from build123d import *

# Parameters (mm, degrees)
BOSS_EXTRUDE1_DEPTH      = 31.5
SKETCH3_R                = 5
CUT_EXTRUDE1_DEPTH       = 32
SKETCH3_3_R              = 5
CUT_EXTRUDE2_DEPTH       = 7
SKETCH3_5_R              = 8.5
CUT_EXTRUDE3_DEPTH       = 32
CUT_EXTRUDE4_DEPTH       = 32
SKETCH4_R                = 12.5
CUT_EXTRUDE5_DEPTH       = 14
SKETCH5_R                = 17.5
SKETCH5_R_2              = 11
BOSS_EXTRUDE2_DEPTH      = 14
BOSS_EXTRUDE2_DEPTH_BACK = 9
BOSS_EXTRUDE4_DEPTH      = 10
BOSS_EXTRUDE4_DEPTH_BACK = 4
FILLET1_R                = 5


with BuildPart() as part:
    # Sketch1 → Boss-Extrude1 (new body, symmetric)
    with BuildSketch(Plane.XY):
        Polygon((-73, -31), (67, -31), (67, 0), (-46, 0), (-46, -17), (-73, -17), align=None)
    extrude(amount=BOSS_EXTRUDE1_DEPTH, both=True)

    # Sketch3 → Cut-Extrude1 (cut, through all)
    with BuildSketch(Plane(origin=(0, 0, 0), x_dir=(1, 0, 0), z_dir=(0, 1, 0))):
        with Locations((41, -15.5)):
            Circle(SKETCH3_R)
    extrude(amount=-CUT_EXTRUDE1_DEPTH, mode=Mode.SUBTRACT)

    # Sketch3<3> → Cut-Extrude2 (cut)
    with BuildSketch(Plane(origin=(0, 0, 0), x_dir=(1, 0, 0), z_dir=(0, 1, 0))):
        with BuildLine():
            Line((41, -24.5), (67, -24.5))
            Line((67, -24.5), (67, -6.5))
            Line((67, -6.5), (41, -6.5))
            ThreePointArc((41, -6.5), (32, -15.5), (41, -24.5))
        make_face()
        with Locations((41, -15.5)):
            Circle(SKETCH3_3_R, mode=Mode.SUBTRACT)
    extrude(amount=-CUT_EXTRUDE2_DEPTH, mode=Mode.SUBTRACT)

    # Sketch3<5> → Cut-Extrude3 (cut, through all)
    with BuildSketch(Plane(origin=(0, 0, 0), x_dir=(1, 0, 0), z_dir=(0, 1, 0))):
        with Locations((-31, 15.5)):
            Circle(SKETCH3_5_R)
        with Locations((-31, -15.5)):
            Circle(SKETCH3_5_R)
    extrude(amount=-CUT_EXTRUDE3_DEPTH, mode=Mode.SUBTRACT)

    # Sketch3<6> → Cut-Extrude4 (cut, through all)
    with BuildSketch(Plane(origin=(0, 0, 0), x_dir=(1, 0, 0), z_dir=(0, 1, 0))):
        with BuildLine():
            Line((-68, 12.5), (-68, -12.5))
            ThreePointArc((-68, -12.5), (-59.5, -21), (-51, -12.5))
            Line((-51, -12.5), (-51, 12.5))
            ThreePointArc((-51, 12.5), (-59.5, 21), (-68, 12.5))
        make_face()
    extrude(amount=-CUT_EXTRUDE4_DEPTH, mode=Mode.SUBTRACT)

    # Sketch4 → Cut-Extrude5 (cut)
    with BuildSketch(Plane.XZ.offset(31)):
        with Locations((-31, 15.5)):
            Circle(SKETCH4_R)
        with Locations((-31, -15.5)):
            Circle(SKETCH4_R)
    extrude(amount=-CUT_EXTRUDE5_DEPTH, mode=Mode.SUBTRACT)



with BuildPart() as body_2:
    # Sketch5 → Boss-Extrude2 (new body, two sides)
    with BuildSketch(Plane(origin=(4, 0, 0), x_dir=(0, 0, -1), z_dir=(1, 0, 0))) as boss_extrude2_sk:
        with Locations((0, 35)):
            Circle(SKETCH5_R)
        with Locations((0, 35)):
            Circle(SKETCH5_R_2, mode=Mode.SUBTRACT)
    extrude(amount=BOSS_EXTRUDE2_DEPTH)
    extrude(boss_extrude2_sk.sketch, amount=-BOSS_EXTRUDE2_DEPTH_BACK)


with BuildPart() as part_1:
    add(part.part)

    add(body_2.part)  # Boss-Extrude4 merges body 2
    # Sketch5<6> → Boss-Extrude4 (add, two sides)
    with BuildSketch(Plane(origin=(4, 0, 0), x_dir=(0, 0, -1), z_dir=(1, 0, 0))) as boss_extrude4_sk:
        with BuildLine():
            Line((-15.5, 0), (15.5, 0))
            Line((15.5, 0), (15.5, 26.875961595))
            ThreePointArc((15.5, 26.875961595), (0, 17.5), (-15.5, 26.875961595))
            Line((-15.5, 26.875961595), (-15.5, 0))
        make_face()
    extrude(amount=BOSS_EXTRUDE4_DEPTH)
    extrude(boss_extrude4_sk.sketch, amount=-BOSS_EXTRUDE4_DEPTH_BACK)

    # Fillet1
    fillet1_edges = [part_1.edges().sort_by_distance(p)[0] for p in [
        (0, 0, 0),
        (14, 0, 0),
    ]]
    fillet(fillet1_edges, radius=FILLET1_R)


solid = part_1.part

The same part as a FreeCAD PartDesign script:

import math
import FreeCAD as App
import Part
import Sketcher
from FreeCAD import Vector
Q = App.Units.Quantity


def edges_at(feature, points):
    """Names of the edges that pass closest to the given points."""
    edges = feature.Shape.Edges
    near = lambda p: min(range(len(edges)), key=lambda i: edges[i].distToShape(Part.Vertex(*p))[0])
    return sorted({f"Edge{near(p) + 1}" for p in points})


def add_polygon(sketch, points):
    """Adds a closed chain of lines whose ends are joined by coincident constraints."""
    first, n = sketch.GeometryCount, len(points)
    for a, b in zip(points, points[1:] + points[:1]):
        sketch.addGeometry(Part.LineSegment(App.Vector(*a, 0), App.Vector(*b, 0)), False)
    for i in range(n):
        sketch.addConstraint(Sketcher.Constraint("Coincident", first + i, 2, first + (i + 1) % n, 1))

doc = App.newDocument("Part")
body = doc.addObject("PartDesign::Body", "Body")

# Sketch on XY plane
sketch1 = body.newObject("Sketcher::SketchObject", "Sketch")
sketch1.AttachmentSupport = (doc.getObject("XY_Plane"), [""])
sketch1.MapMode = "FlatFace"
add_polygon(sketch1, [(-73, -31), (67, -31), (67, 0), (-46, 0), (-46, -17), (-73, -17)])  # lines 0-5
sketch1.addConstraint([
    Sketcher.Constraint("Horizontal", 0),
    Sketcher.Constraint("Vertical", 1),
    Sketcher.Constraint("Horizontal", 2),
    Sketcher.Constraint("Vertical", 3),
    Sketcher.Constraint("Horizontal", 4),
    Sketcher.Constraint("Vertical", 5),
    Sketcher.Constraint("PointOnObject", 1, 2, -1),
    Sketcher.Constraint("DistanceX", 0, 1, 0, 2, Q("140 mm")),
    Sketcher.Constraint("DistanceX", 2, 2, 2, 1, Q("113 mm")),
    Sketcher.Constraint("DistanceY", 1, 1, 1, 2, Q("31 mm")),
    Sketcher.Constraint("DistanceY", 3, 2, 3, 1, Q("17 mm")),
    Sketcher.Constraint("DistanceX", -1, 1, 0, 2, Q("67 mm")),
])
pad1 = body.newObject("PartDesign::Pad", "Pad")
pad1.Profile = sketch1
pad1.Length = 63
pad1.Midplane = True

# Sketch on XZ plane
sketch2 = body.newObject("Sketcher::SketchObject", "Sketch001")
sketch2.AttachmentSupport = (doc.getObject("XZ_Plane"), [""])
sketch2.MapMode = "FlatFace"
sketch2.addGeometry(Part.Circle(Vector(41, 16, 0), Vector(0, 0, 1), 5), False)
sketch2.addConstraint([
    Sketcher.Constraint("Diameter", 0, Q("10 mm")),
    Sketcher.Constraint("DistanceX", -1, 1, 0, 3, Q("41 mm")),
    Sketcher.Constraint("DistanceY", -1, 1, 0, 3, Q("15.5 mm")),
])
pocket1 = body.newObject("PartDesign::Pocket", "Pocket")
pocket1.Profile = sketch2
pocket1.Type = "ThroughAll"
pocket1.Reversed = True

# Sketch on XZ plane
sketch3 = body.newObject("Sketcher::SketchObject", "Sketch002")
sketch3.AttachmentSupport = (doc.getObject("XZ_Plane"), [""])
sketch3.MapMode = "FlatFace"
sketch3.addGeometry([
    Part.LineSegment(Vector(41, 24, 0), Vector(67, 24, 0)),  # 0
    Part.LineSegment(Vector(67, 24, 0), Vector(67, 6, 0)),  # 1
    Part.LineSegment(Vector(67, 6, 0), Vector(41, 6, 0)),  # 2
    Part.ArcOfCircle(Part.Circle(Vector(41, 16, 0), Vector(0, 0, 1), 9), math.radians(90), math.radians(270)),  # 3
    Part.Circle(Vector(41, 16, 0), Vector(0, 0, 1), 5),  # 4
], False)
sketch3.addConstraint([
    Sketcher.Constraint("Coincident", 0, 2, 1, 1),
    Sketcher.Constraint("Coincident", 1, 2, 2, 1),
    Sketcher.Constraint("Tangent", 2, 2, 3, 2),
    Sketcher.Constraint("Tangent", 3, 1, 0, 1),
    Sketcher.Constraint("Horizontal", 0),
    Sketcher.Constraint("Vertical", 1),
    Sketcher.Constraint("Horizontal", 2),
    Sketcher.Constraint("Coincident", 4, 3, 3, 3),
    Sketcher.Constraint("Diameter", 4, Q("10 mm")),
    Sketcher.Constraint("Radius", 3, Q("9 mm")),
    Sketcher.Constraint("DistanceX", 0, 1, 0, 2, Q("26 mm")),
    Sketcher.Constraint("DistanceX", -1, 1, 3, 3, Q("41 mm")),
    Sketcher.Constraint("DistanceY", -1, 1, 3, 3, Q("15.5 mm")),
])
pocket2 = body.newObject("PartDesign::Pocket", "Pocket001")
pocket2.Profile = sketch3
pocket2.Length = 7
pocket2.Reversed = True

# Sketch on XZ plane
sketch4 = body.newObject("Sketcher::SketchObject", "Sketch003")
sketch4.AttachmentSupport = (doc.getObject("XZ_Plane"), [""])
sketch4.MapMode = "FlatFace"
sketch4.addGeometry([
    Part.Circle(Vector(-31, -16, 0), Vector(0, 0, 1), 8),
    Part.Circle(Vector(-31, 16, 0), Vector(0, 0, 1), 8),
], False)
sketch4.addConstraint([
    Sketcher.Constraint("Equal", 0, 1),
    Sketcher.Constraint("Symmetric", 0, 3, 1, 3, -1),
    Sketcher.Constraint("Diameter", 0, Q("17 mm")),
    Sketcher.Constraint("DistanceX", 0, 3, -1, 1, Q("31 mm")),
    Sketcher.Constraint("DistanceY", 0, 3, 1, 3, Q("31 mm")),
])
pocket3 = body.newObject("PartDesign::Pocket", "Pocket002")
pocket3.Profile = sketch4
pocket3.Type = "ThroughAll"
pocket3.Reversed = True

# Sketch on XZ plane
sketch5 = body.newObject("Sketcher::SketchObject", "Sketch004")
sketch5.AttachmentSupport = (doc.getObject("XZ_Plane"), [""])
sketch5.MapMode = "FlatFace"
sketch5.addGeometry([
    Part.LineSegment(Vector(-68, -12, 0), Vector(-68, 12, 0)),
    Part.ArcOfCircle(Part.Circle(Vector(-60, 12, 0), Vector(0, 0, 1), 8), math.radians(0), math.radians(180)),
    Part.LineSegment(Vector(-51, 12, 0), Vector(-51, -12, 0)),
    Part.ArcOfCircle(Part.Circle(Vector(-60, -12, 0), Vector(0, 0, 1), 8), math.radians(180), math.radians(360)),
], False)
sketch5.addConstraint([
    Sketcher.Constraint("Tangent", 0, 2, 1, 2),
    Sketcher.Constraint("Tangent", 1, 1, 2, 1),
    Sketcher.Constraint("Tangent", 2, 2, 3, 2),
    Sketcher.Constraint("Tangent", 3, 1, 0, 1),
    Sketcher.Constraint("Vertical", 0),
    Sketcher.Constraint("Vertical", 2),
    Sketcher.Constraint("Radius", 1, Q("8.5 mm")),
    Sketcher.Constraint("DistanceY", 0, 1, 0, 2, Q("25 mm")),
    Sketcher.Constraint("DistanceX", 0, 2, -1, 1, Q("68 mm")),
    Sketcher.Constraint("DistanceY", -1, 1, 1, 3, Q("12.5 mm")),
])
pocket4 = body.newObject("PartDesign::Pocket", "Pocket003")
pocket4.Profile = sketch5
pocket4.Type = "ThroughAll"
pocket4.Reversed = True

# Sketch on XZ plane
sketch6 = body.newObject("Sketcher::SketchObject", "Sketch005")
sketch6.AttachmentSupport = (doc.getObject("XZ_Plane"), [""])
sketch6.MapMode = "FlatFace"
sketch6.AttachmentOffset = App.Placement(Vector(0, 0, 31), App.Rotation())
sketch6.addGeometry([
    Part.Circle(Vector(-31, 16, 0), Vector(0, 0, 1), 12),
    Part.Circle(Vector(-31, -16, 0), Vector(0, 0, 1), 12),
], False)
sketch6.addConstraint([
    Sketcher.Constraint("Equal", 0, 1),
    Sketcher.Constraint("Symmetric", 0, 3, 1, 3, -1),
    Sketcher.Constraint("Diameter", 0, Q("25 mm")),
    Sketcher.Constraint("DistanceX", 0, 3, -1, 1, Q("31 mm")),
    Sketcher.Constraint("DistanceY", 1, 3, 0, 3, Q("31 mm")),
])
pocket5 = body.newObject("PartDesign::Pocket", "Pocket004")
pocket5.Profile = sketch6
pocket5.Length = 14
body2 = doc.addObject("PartDesign::Body", "Body001")

# Sketch on YZ plane
sketch7 = body2.newObject("Sketcher::SketchObject", "Sketch006")
sketch7.AttachmentSupport = (doc.getObject("YZ_Plane001"), [""])
sketch7.MapMode = "FlatFace"
sketch7.AttachmentOffset = App.Placement(Vector(0, 0, 4), App.Rotation())
sketch7.addGeometry([
    Part.Circle(Vector(35, 0, 0), Vector(0, 0, 1), 18),
    Part.Circle(Vector(35, 0, 0), Vector(0, 0, 1), 11),
], False)
sketch7.addConstraint([
    Sketcher.Constraint("Coincident", 1, 3, 0, 3),
    Sketcher.Constraint("PointOnObject", 0, 3, -1),
    Sketcher.Constraint("Diameter", 0, Q("35 mm")),
    Sketcher.Constraint("Diameter", 1, Q("22 mm")),
    Sketcher.Constraint("DistanceX", -1, 1, 0, 3, Q("35 mm")),
])
pad2 = body2.newObject("PartDesign::Pad", "Pad001")
pad2.Profile = sketch7
pad2.Type = "TwoLengths"
pad2.Length = 14
pad2.Length2 = 9
body.AllowCompound = True
doc.recompute()

boolean = body.newObject("PartDesign::Boolean", "Boolean")
boolean.Type = "Fuse"
boolean.addObjects([body2])

# Sketch on YZ plane
sketch8 = body.newObject("Sketcher::SketchObject", "Sketch007")
sketch8.AttachmentSupport = (doc.getObject("YZ_Plane"), [""])
sketch8.MapMode = "FlatFace"
sketch8.AttachmentOffset = App.Placement(Vector(0, 0, 4), App.Rotation())
sketch8.addGeometry([
    Part.LineSegment(Vector(0, 16, 0), Vector(0, -16, 0)),
    Part.LineSegment(Vector(0, -16, 0), Vector(27, -16, 0)),
    Part.ArcOfCircle(Part.Circle(Vector(35, 0, 0), Vector(0, 0, 1), 18), math.radians(118), math.radians(242)),
    Part.LineSegment(Vector(27, 16, 0), Vector(0, 16, 0)),
], False)
sketch8.addConstraint([
    Sketcher.Constraint("Coincident", 0, 2, 1, 1),
    Sketcher.Constraint("Coincident", 1, 2, 2, 2),
    Sketcher.Constraint("Coincident", 2, 1, 3, 1),
    Sketcher.Constraint("Coincident", 3, 2, 0, 1),
    Sketcher.Constraint("Vertical", 0),
    Sketcher.Constraint("Horizontal", 1),
    Sketcher.Constraint("Horizontal", 3),
    Sketcher.Constraint("Symmetric", 0, 2, 3, 2, -1, 1),
    Sketcher.Constraint("PointOnObject", 2, 3, -1),
    Sketcher.Constraint("Radius", 2, Q("17.5 mm")),
    Sketcher.Constraint("DistanceY", 0, 2, 0, 1, Q("31 mm")),
    Sketcher.Constraint("DistanceX", -1, 1, 2, 3, Q("35 mm")),
])
pad3 = body.newObject("PartDesign::Pad", "Pad002")
pad3.Profile = sketch8
pad3.Type = "TwoLengths"
pad3.Length = 10
pad3.Length2 = 4
doc.recompute()

fillet = body.newObject("PartDesign::Fillet", "Fillet")
fillet.Base = (pad3, edges_at(pad3, [(0, 0, 0), (14, 0, 0)]))
fillet.Radius = 5

doc.recompute()
